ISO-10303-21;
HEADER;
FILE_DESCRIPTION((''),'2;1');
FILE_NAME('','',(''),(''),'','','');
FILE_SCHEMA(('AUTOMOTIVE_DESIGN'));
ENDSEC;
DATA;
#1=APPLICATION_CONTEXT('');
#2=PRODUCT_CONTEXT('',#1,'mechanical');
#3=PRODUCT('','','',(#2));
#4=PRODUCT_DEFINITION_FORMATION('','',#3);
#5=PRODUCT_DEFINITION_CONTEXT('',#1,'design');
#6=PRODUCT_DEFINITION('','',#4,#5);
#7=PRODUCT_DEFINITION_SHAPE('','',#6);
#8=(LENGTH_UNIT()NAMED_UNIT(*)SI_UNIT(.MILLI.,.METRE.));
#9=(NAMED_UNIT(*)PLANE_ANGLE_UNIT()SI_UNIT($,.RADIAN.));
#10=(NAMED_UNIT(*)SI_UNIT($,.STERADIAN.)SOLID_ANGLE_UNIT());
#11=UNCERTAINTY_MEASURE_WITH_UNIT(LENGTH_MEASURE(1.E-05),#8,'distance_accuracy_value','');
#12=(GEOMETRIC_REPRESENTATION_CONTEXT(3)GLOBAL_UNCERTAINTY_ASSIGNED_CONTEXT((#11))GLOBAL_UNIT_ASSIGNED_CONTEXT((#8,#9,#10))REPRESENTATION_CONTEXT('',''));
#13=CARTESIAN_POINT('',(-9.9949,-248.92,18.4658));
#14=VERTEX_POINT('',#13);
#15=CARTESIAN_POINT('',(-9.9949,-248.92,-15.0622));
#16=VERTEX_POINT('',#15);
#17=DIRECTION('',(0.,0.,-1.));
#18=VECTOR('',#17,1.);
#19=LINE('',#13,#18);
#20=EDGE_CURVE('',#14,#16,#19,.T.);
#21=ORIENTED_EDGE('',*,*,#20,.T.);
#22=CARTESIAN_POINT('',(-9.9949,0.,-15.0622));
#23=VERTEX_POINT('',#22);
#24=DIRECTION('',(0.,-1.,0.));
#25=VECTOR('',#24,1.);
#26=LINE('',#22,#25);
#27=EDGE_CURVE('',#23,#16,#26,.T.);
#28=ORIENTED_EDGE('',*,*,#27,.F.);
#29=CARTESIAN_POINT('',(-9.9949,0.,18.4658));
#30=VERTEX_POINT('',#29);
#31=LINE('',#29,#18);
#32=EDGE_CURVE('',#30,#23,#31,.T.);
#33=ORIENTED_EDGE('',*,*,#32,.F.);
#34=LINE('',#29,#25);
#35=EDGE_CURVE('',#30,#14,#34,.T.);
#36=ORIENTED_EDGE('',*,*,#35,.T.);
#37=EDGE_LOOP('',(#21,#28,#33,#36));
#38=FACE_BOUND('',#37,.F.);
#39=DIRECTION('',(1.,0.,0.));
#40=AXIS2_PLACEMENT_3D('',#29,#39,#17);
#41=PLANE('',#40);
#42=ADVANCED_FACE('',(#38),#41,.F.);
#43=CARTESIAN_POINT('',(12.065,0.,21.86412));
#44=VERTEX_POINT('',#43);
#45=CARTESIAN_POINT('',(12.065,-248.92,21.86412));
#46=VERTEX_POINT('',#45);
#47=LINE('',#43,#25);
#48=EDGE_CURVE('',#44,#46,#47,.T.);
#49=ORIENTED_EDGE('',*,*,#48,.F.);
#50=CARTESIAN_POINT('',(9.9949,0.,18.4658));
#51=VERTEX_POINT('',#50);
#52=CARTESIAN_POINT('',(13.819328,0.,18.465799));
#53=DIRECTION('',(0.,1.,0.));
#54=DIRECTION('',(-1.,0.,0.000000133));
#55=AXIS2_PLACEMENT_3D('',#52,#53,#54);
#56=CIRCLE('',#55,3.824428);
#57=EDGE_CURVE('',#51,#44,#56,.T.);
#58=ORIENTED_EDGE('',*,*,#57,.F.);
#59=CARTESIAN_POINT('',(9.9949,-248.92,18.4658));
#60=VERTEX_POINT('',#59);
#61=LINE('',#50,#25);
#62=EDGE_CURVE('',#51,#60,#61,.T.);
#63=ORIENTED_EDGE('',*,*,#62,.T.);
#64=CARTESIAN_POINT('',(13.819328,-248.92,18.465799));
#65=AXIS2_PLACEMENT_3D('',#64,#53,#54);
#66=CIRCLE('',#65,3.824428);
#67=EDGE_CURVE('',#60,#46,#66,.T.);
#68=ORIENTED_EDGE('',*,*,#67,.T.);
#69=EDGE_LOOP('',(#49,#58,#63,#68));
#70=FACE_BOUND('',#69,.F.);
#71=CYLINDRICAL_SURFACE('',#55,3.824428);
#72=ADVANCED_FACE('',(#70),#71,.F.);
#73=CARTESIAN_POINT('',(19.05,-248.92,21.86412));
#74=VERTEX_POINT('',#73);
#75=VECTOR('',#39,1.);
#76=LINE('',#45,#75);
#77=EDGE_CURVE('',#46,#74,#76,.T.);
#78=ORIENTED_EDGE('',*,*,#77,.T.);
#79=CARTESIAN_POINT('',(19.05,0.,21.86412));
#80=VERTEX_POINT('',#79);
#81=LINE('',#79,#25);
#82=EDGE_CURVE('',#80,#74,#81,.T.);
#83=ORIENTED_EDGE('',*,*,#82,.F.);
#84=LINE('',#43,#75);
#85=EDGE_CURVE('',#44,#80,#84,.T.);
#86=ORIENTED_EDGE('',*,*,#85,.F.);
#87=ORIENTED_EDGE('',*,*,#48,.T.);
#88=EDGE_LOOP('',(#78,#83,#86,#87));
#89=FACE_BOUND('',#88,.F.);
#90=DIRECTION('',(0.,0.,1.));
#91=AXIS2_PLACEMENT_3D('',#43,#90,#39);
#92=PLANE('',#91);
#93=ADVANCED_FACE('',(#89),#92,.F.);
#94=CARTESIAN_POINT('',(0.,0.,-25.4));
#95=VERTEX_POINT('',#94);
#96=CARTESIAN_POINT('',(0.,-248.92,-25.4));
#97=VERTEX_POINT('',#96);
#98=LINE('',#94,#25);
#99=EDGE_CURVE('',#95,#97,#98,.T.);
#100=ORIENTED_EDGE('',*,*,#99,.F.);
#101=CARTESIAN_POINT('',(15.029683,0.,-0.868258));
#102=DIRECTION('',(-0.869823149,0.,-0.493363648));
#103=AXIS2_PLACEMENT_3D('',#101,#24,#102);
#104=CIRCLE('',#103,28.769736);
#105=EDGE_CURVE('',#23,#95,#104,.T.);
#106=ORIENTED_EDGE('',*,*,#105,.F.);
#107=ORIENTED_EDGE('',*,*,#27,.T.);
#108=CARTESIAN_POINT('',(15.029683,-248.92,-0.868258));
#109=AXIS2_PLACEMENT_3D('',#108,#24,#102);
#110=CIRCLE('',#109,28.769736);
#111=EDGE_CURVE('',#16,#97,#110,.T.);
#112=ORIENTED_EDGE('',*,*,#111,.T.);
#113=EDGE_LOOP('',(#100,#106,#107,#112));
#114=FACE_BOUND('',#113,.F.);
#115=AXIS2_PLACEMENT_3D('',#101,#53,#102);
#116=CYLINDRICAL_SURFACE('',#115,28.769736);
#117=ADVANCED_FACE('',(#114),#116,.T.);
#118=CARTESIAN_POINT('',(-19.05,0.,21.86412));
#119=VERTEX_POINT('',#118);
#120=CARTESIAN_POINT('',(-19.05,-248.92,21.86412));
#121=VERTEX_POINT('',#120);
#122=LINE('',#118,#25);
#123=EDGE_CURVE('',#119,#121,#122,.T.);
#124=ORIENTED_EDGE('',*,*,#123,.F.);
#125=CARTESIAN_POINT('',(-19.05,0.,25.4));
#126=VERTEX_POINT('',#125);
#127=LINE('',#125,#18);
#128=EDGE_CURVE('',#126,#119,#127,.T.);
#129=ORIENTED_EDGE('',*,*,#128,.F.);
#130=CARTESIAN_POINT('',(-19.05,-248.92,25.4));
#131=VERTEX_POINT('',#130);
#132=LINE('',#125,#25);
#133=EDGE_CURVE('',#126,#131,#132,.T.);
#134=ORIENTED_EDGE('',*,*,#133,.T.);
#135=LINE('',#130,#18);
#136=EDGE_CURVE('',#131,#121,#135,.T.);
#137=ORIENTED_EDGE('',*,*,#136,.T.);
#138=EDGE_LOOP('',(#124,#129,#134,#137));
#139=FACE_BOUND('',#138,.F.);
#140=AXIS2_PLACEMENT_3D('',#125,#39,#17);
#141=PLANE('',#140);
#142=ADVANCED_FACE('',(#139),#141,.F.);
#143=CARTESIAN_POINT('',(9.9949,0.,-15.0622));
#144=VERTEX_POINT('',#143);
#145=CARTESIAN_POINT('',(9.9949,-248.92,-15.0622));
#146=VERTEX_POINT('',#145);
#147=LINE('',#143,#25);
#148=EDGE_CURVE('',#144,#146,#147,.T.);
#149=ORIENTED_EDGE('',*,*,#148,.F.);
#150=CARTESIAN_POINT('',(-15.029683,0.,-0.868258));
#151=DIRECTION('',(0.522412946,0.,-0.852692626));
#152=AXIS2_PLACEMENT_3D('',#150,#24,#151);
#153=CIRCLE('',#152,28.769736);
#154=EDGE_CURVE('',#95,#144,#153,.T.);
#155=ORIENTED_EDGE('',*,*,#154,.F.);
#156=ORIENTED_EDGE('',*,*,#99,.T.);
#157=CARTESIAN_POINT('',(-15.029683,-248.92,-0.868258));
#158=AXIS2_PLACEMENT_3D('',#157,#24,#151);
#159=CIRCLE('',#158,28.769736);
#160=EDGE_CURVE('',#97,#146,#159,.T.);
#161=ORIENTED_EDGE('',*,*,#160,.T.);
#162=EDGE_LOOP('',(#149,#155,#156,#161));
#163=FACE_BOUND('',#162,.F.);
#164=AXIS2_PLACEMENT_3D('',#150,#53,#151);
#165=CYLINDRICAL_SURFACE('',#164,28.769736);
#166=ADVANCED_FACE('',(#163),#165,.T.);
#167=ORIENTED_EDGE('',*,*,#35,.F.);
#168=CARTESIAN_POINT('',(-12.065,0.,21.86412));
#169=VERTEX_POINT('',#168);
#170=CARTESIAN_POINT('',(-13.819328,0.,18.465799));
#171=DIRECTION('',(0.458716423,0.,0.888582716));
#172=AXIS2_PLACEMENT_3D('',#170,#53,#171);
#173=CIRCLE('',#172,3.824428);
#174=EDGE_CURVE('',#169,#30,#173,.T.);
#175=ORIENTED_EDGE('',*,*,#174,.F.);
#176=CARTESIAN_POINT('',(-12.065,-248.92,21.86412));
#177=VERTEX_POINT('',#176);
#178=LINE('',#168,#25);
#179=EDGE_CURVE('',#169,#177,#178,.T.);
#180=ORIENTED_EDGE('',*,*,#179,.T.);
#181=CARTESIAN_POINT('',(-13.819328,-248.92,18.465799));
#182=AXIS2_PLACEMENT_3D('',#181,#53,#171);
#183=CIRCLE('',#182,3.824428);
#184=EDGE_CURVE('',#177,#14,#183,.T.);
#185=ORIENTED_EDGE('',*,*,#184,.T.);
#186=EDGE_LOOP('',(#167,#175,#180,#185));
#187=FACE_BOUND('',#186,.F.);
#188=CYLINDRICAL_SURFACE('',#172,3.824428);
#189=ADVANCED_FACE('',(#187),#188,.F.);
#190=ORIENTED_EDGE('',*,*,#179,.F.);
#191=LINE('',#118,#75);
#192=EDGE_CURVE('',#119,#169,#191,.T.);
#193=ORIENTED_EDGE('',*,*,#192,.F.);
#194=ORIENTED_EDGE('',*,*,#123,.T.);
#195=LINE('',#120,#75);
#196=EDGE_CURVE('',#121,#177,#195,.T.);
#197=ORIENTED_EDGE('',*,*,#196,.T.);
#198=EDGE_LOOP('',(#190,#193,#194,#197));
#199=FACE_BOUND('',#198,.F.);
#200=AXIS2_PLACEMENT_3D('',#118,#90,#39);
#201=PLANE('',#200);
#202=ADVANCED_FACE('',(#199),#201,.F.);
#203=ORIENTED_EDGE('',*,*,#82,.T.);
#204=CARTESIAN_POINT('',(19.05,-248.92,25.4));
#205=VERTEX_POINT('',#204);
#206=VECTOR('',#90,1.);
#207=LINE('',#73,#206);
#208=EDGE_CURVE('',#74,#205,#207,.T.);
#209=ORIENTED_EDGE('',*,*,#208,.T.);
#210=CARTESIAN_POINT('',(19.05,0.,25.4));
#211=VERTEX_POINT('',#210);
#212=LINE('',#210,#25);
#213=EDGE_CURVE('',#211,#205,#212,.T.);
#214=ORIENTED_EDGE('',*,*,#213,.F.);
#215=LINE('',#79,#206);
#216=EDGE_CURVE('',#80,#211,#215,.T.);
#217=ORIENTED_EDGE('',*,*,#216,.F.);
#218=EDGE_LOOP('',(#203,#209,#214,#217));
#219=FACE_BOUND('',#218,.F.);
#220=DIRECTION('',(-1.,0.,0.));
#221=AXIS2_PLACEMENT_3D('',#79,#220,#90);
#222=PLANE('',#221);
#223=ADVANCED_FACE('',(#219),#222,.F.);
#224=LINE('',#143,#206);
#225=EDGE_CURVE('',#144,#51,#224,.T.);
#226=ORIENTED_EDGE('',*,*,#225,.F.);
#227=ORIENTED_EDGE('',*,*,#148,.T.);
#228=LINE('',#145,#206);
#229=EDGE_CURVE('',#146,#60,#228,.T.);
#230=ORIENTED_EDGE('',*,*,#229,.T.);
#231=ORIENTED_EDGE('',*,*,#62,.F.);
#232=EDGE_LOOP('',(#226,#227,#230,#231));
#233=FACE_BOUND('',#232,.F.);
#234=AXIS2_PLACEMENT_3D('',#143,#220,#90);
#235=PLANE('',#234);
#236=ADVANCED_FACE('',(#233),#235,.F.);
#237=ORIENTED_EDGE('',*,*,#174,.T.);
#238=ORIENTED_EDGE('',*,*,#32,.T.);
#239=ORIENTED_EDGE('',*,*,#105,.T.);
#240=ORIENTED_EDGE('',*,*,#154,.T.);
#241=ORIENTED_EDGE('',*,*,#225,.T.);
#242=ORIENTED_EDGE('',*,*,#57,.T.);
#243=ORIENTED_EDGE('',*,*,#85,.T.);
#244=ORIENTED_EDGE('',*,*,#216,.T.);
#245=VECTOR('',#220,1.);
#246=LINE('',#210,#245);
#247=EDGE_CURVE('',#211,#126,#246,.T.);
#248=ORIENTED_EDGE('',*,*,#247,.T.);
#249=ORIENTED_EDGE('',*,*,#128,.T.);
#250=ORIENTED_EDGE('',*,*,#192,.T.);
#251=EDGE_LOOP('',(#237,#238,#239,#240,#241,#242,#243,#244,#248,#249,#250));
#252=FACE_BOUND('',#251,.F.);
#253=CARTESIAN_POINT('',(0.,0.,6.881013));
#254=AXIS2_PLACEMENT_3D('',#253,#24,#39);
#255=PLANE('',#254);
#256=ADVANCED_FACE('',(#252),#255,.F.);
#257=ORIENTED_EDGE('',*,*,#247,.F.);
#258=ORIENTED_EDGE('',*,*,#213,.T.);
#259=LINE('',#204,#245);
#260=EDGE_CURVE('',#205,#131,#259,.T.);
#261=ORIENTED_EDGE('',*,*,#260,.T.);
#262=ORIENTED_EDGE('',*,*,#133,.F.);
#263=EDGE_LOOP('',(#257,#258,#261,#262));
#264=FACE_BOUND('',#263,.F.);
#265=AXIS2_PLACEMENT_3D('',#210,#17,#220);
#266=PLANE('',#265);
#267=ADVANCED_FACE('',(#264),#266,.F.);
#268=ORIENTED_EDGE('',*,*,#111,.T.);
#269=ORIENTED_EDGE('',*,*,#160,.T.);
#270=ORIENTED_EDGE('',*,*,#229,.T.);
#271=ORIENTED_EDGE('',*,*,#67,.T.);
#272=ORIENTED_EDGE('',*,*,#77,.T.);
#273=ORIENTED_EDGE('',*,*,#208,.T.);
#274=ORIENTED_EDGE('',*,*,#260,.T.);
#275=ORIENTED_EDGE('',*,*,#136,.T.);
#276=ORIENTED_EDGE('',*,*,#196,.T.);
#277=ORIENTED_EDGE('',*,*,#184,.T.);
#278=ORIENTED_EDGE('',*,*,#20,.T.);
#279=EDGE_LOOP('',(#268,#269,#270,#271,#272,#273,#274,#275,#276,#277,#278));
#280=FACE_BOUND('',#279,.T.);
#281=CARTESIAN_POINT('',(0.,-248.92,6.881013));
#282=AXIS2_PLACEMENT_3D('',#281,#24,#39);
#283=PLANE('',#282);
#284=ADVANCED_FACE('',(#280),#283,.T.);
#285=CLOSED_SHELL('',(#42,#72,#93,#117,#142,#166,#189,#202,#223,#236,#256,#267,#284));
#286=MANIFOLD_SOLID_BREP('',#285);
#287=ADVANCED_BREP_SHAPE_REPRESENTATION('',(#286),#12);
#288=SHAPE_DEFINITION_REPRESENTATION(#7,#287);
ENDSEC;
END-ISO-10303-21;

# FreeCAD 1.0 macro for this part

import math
import FreeCAD as App
import Part
import Sketcher
from FreeCAD import Vector
Q = App.Units.Quantity

doc = App.newDocument("Part")
body = doc.addObject("PartDesign::Body", "Body")

# Sketch on XZ plane
sketch1 = doc.addObject("Sketcher::SketchObject", "Sketch")
body.addObject(sketch1)
sketch1.AttachmentSupport = (doc.XZ_Plane, [""])
sketch1.MapMode = "FlatFace"
sketch1.addGeometry(Part.LineSegment(Vector(19.1, 25.4, 0), Vector(-19.1, 25.4, 0)), False)
sketch1.addGeometry(Part.LineSegment(Vector(-19.1, 25.4, 0), Vector(-19.1, 21.9, 0)), False)
sketch1.addGeometry(Part.LineSegment(Vector(-19.1, 21.9, 0), Vector(-12.1, 21.9, 0)), False)
sketch1.addGeometry(Part.ArcOfCircle(Part.Circle(Vector(-13.8, 18.5, 0), Vector(0, 0, 1), 3.8), math.radians(0), math.radians(63)), False)
sketch1.addGeometry(Part.LineSegment(Vector(-10, 18.5, 0), Vector(-10, -15.1, 0)), False)
sketch1.addGeometry(Part.ArcOfCircle(Part.Circle(Vector(15, -0.9, 0), Vector(0, 0, 1), 28.8), math.radians(-150), math.radians(-121)), False)
sketch1.addGeometry(Part.ArcOfCircle(Part.Circle(Vector(-15, -0.9, 0), Vector(0, 0, 1), 28.8), math.radians(-59), math.radians(-30)), False)
sketch1.addGeometry(Part.LineSegment(Vector(10, -15.1, 0), Vector(10, 18.5, 0)), False)
sketch1.addGeometry(Part.ArcOfCircle(Part.Circle(Vector(13.8, 18.5, 0), Vector(0, 0, 1), 3.8), math.radians(117), math.radians(180)), False)
sketch1.addGeometry(Part.LineSegment(Vector(12.1, 21.9, 0), Vector(19.1, 21.9, 0)), False)
sketch1.addGeometry(Part.LineSegment(Vector(19.1, 21.9, 0), Vector(19.1, 25.4, 0)), False)
sketch1.addConstraint(Sketcher.Constraint("Coincident", 0, 2, 1, 1))
sketch1.addConstraint(Sketcher.Constraint("Coincident", 1, 2, 2, 1))
sketch1.addConstraint(Sketcher.Constraint("Coincident", 2, 2, 3, 2))
sketch1.addConstraint(Sketcher.Constraint("Tangent", 3, 1, 4, 1))
sketch1.addConstraint(Sketcher.Constraint("Coincident", 4, 2, 5, 1))
sketch1.addConstraint(Sketcher.Constraint("Coincident", 5, 2, 6, 1))
sketch1.addConstraint(Sketcher.Constraint("Coincident", 6, 2, 7, 1))
sketch1.addConstraint(Sketcher.Constraint("Tangent", 7, 2, 8, 2))
sketch1.addConstraint(Sketcher.Constraint("Coincident", 8, 1, 9, 1))
sketch1.addConstraint(Sketcher.Constraint("Coincident", 9, 2, 10, 1))
sketch1.addConstraint(Sketcher.Constraint("Coincident", 10, 2, 0, 1))
sketch1.addConstraint(Sketcher.Constraint("Horizontal", 0))
sketch1.addConstraint(Sketcher.Constraint("Vertical", 1))
sketch1.addConstraint(Sketcher.Constraint("Horizontal", 2))
sketch1.addConstraint(Sketcher.Constraint("Vertical", 4))
sketch1.addConstraint(Sketcher.Constraint("Vertical", 7))
sketch1.addConstraint(Sketcher.Constraint("Horizontal", 9))
sketch1.addConstraint(Sketcher.Constraint("Vertical", 10))
sketch1.addConstraint(Sketcher.Constraint("Equal", 5, 6))
sketch1.addConstraint(Sketcher.Constraint("Equal", 3, 8))
sketch1.addConstraint(Sketcher.Constraint("Symmetric", 5, 3, 6, 3, -2))
sketch1.addConstraint(Sketcher.Constraint("Symmetric", 3, 3, 8, 3, -2))
sketch1.addConstraint(Sketcher.Constraint("Symmetric", 1, 2, 9, 2, -2))
sketch1.addConstraint(Sketcher.Constraint("DistanceX", 0, 2, 0, 1, Q("1.5 in")))
sketch1.addConstraint(Sketcher.Constraint("DistanceY", -1, 1, 0, 2, Q("1 in")))
sketch1.addConstraint(Sketcher.Constraint("DistanceY", 5, 2, -1, 1, Q("1 in")))
sketch1.addConstraint(Sketcher.Constraint("DistanceY", 4, 2, 4, 1, Q("1.32 in")))
sketch1.addConstraint(Sketcher.Constraint("DistanceX", 2, 1, 2, 2, Q("0.275 in")))
sketch1.addConstraint(Sketcher.Constraint("DistanceY", -1, 1, 3, 3, Q("0.727 in")))
sketch1.addConstraint(Sketcher.Constraint("DistanceX", 4, 2, 6, 2, Q("0.787 in")))
sketch1.addConstraint(Sketcher.Constraint("Radius", 3, 3.824428))
sketch1.addConstraint(Sketcher.Constraint("Radius", 5, 28.769736))
pad1 = doc.addObject("PartDesign::Pad", "Pad")
body.addObject(pad1)
pad1.Profile = sketch1
pad1.Length = Q("9.8 in")

doc.recompute()
